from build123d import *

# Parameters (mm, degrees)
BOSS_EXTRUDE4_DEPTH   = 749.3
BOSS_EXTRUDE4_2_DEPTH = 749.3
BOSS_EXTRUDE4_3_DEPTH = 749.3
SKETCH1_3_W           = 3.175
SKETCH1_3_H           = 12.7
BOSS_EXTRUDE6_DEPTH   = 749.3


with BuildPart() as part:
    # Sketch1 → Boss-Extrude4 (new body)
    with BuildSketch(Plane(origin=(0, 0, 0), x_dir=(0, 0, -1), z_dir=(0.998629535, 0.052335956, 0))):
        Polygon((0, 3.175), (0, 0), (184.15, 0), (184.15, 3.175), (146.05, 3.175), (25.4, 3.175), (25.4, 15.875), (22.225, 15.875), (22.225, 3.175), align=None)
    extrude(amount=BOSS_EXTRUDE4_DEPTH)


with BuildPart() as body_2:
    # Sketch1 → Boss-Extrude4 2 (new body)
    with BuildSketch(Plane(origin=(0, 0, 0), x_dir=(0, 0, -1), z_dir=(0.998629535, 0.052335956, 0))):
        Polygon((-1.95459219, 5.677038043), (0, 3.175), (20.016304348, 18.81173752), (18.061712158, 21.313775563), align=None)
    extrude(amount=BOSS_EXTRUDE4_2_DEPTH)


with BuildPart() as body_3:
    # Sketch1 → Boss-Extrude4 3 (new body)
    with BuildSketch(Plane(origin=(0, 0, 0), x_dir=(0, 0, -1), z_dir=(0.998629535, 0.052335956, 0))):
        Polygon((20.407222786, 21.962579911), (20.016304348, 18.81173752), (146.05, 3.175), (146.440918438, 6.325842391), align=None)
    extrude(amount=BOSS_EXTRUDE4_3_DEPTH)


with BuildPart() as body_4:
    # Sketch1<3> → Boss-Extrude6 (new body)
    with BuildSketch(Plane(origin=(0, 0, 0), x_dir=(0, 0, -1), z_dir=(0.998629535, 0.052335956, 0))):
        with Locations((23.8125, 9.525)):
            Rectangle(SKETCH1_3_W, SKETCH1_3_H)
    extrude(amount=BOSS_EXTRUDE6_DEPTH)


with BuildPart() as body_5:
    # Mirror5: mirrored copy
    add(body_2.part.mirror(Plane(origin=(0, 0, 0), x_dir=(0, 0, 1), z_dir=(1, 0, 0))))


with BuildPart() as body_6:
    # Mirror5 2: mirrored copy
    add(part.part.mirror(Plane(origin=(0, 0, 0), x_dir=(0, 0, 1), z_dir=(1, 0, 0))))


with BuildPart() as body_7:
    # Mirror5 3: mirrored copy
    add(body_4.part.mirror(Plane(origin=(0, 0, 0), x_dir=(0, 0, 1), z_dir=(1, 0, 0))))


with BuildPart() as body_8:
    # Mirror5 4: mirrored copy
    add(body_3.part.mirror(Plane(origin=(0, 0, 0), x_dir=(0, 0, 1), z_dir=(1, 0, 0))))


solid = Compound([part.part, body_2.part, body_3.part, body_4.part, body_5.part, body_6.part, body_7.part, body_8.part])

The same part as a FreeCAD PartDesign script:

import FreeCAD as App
import Part
import Sketcher
Q = App.Units.Quantity


def add_polygon(sketch, points):
    """Adds a closed chain of lines whose ends are joined by coincident constraints."""
    first, n = sketch.GeometryCount, len(points)
    for a, b in zip(points, points[1:] + points[:1]):
        sketch.addGeometry(Part.LineSegment(App.Vector(*a, 0), App.Vector(*b, 0)), False)
    for i in range(n):
        sketch.addConstraint(Sketcher.Constraint("Coincident", first + i, 2, first + (i + 1) % n, 1))

doc = App.newDocument("Part")
body = doc.addObject("PartDesign::Body", "Body")

sketch1 = body.newObject("Sketcher::SketchObject", "Sketch")
sketch1.Placement = App.Placement(App.Vector(0, 0, 0), App.Rotation(App.Vector(0, 0, -1), App.Vector(-0.052335956, 0.998629535, 0), App.Vector(0.998629535, 0.052335956, 0), "ZXY"))
add_polygon(sketch1, [(0, 3.175), (0, 0), (184.15, 0), (184.15, 3.175), (25.4, 3.175), (25.4, 15.875), (22.225, 15.875), (22.225, 3.175)])
sketch1.addConstraint([
    Sketcher.Constraint("Vertical", 0),
    Sketcher.Constraint("Horizontal", 1),
    Sketcher.Constraint("Vertical", 2),
    Sketcher.Constraint("Horizontal", 3),
    Sketcher.Constraint("Vertical", 4),
    Sketcher.Constraint("Horizontal", 5),
    Sketcher.Constraint("Vertical", 6),
    Sketcher.Constraint("Horizontal", 7),
    Sketcher.Constraint("Coincident", 0, 2, -1, 1),
    Sketcher.Constraint("Horizontal", 3, 2, 6, 2),
    Sketcher.Constraint("Equal", 5, 0),
    Sketcher.Constraint("DistanceY", 4, 1, 4, 2, Q("0.5 in")),
    Sketcher.Constraint("DistanceX", -1, 1, 3, 2, Q("1 in")),
    Sketcher.Constraint("DistanceX", 1, 1, 1, 2, Q("7.25 in")),
    Sketcher.Constraint("DistanceX", 5, 2, 5, 1, Q("0.125 in")),
])
pad1 = body.newObject("PartDesign::Pad", "Pad")
pad1.Profile = sketch1
pad1.Length = Q("29.5 in")
body2 = doc.addObject("PartDesign::Body", "Body001")

sketch2 = body2.newObject("Sketcher::SketchObject", "Sketch001")
sketch2.Placement = App.Placement(App.Vector(0, 0, 0), App.Rotation(App.Vector(0, 0, -1), App.Vector(-0.052335956, 0.998629535, 0), App.Vector(0.998629535, 0.052335956, 0), "ZXY"))
add_polygon(sketch2, [(-1.954592, 5.677038), (0, 3.175), (20.016304, 18.811738), (18.061712, 21.313776)])
sketch2.addConstraint([
    Sketcher.Constraint("PointOnObject", 0, 2, -2),
    Sketcher.Constraint("Perpendicular", 0, 1),
    Sketcher.Constraint("Perpendicular", 1, 2),
    Sketcher.Constraint("Perpendicular", 2, 3),
    Sketcher.Constraint("Distance", 1, Q("1 in")),
    Sketcher.Constraint("Distance", 0, Q("0.125 in")),
    Sketcher.Constraint("DistanceY", -1, 1, 0, 2, Q("0.125 in")),
    Sketcher.Constraint("DistanceY", 3, 2, 1, 2, Q("13.134699 mm")),
])
pad2 = body2.newObject("PartDesign::Pad", "Pad001")
pad2.Profile = sketch2
pad2.Length = Q("29.5 in")
body3 = doc.addObject("PartDesign::Body", "Body002")

sketch3 = body3.newObject("Sketcher::SketchObject", "Sketch002")
sketch3.Placement = App.Placement(App.Vector(0, 0, 0), App.Rotation(App.Vector(0, 0, -1), App.Vector(-0.052335956, 0.998629535, 0), App.Vector(0.998629535, 0.052335956, 0), "ZXY"))
add_polygon(sketch3, [(20.407223, 21.96258), (20.016304, 18.811738), (146.05, 3.175), (146.440918, 6.325842)])
sketch3.addConstraint([
    Sketcher.Constraint("Perpendicular", 0, 1),
    Sketcher.Constraint("Perpendicular", 1, 2),
    Sketcher.Constraint("Perpendicular", 2, 3),
    Sketcher.Constraint("Distance", 1, Q("5 in")),
    Sketcher.Constraint("DistanceX", -1, 1, 1, 2, Q("5.75 in")),
    Sketcher.Constraint("Distance", 0, Q("0.125 in")),
    Sketcher.Constraint("DistanceY", -1, 1, 1, 2, Q("0.125 in")),
    Sketcher.Constraint("DistanceX", -1, 1, 2, 2, Q("146.440918 mm")),
])
pad3 = body3.newObject("PartDesign::Pad", "Pad002")
pad3.Profile = sketch3
pad3.Length = Q("29.5 in")
body4 = doc.addObject("PartDesign::Body", "Body003")

sketch4 = body4.newObject("Sketcher::SketchObject", "Sketch003")
sketch4.Placement = App.Placement(App.Vector(0, 0, 0), App.Rotation(App.Vector(0, 0, -1), App.Vector(-0.052335956, 0.998629535, 0), App.Vector(0.998629535, 0.052335956, 0), "ZXY"))
add_polygon(sketch4, [(22.225, 15.875), (22.225, 3.175), (25.4, 3.175), (25.4, 15.875)])
sketch4.addConstraint([
    Sketcher.Constraint("Vertical", 0),
    Sketcher.Constraint("Horizontal", 1),
    Sketcher.Constraint("Vertical", 2),
    Sketcher.Constraint("Horizontal", 3),
    Sketcher.Constraint("DistanceY", 0, 2, 0, 1, Q("0.5 in")),
    Sketcher.Constraint("DistanceX", -1, 1, 1, 2, Q("1 in")),
    Sketcher.Constraint("DistanceX", 1, 1, 1, 2, Q("0.125 in")),
    Sketcher.Constraint("DistanceY", -1, 1, 0, 2, Q("0.125 in")),
])
pad4 = body4.newObject("PartDesign::Pad", "Pad003")
pad4.Profile = sketch4
pad4.Length = Q("29.5 in")
body5 = doc.addObject("PartDesign::Body", "Body004")
doc.recompute()

mirroring = doc.addObject("Part::Mirroring", "Mirroring")
mirroring.Source = body2
mirroring.Base = App.Vector(0, 0, 0)
mirroring.Normal = App.Vector(1, 0, 0)
body5.BaseFeature = mirroring
doc.recompute()
body6 = doc.addObject("PartDesign::Body", "Body005")
doc.recompute()

mirroring2 = doc.addObject("Part::Mirroring", "Mirroring001")
mirroring2.Source = body
mirroring2.Base = App.Vector(0, 0, 0)
mirroring2.Normal = App.Vector(1, 0, 0)
body6.BaseFeature = mirroring2
doc.recompute()
body7 = doc.addObject("PartDesign::Body", "Body006")
doc.recompute()

mirroring3 = doc.addObject("Part::Mirroring", "Mirroring002")
mirroring3.Source = body4
mirroring3.Base = App.Vector(0, 0, 0)
mirroring3.Normal = App.Vector(1, 0, 0)
body7.BaseFeature = mirroring3
doc.recompute()
body8 = doc.addObject("PartDesign::Body", "Body007")
doc.recompute()

mirroring4 = doc.addObject("Part::Mirroring", "Mirroring003")
mirroring4.Source = body3
mirroring4.Base = App.Vector(0, 0, 0)
mirroring4.Normal = App.Vector(1, 0, 0)
body8.BaseFeature = mirroring4
doc.recompute()
mirroring.Visibility = False
mirroring2.Visibility = False
mirroring3.Visibility = False
mirroring4.Visibility = False

doc.recompute()
